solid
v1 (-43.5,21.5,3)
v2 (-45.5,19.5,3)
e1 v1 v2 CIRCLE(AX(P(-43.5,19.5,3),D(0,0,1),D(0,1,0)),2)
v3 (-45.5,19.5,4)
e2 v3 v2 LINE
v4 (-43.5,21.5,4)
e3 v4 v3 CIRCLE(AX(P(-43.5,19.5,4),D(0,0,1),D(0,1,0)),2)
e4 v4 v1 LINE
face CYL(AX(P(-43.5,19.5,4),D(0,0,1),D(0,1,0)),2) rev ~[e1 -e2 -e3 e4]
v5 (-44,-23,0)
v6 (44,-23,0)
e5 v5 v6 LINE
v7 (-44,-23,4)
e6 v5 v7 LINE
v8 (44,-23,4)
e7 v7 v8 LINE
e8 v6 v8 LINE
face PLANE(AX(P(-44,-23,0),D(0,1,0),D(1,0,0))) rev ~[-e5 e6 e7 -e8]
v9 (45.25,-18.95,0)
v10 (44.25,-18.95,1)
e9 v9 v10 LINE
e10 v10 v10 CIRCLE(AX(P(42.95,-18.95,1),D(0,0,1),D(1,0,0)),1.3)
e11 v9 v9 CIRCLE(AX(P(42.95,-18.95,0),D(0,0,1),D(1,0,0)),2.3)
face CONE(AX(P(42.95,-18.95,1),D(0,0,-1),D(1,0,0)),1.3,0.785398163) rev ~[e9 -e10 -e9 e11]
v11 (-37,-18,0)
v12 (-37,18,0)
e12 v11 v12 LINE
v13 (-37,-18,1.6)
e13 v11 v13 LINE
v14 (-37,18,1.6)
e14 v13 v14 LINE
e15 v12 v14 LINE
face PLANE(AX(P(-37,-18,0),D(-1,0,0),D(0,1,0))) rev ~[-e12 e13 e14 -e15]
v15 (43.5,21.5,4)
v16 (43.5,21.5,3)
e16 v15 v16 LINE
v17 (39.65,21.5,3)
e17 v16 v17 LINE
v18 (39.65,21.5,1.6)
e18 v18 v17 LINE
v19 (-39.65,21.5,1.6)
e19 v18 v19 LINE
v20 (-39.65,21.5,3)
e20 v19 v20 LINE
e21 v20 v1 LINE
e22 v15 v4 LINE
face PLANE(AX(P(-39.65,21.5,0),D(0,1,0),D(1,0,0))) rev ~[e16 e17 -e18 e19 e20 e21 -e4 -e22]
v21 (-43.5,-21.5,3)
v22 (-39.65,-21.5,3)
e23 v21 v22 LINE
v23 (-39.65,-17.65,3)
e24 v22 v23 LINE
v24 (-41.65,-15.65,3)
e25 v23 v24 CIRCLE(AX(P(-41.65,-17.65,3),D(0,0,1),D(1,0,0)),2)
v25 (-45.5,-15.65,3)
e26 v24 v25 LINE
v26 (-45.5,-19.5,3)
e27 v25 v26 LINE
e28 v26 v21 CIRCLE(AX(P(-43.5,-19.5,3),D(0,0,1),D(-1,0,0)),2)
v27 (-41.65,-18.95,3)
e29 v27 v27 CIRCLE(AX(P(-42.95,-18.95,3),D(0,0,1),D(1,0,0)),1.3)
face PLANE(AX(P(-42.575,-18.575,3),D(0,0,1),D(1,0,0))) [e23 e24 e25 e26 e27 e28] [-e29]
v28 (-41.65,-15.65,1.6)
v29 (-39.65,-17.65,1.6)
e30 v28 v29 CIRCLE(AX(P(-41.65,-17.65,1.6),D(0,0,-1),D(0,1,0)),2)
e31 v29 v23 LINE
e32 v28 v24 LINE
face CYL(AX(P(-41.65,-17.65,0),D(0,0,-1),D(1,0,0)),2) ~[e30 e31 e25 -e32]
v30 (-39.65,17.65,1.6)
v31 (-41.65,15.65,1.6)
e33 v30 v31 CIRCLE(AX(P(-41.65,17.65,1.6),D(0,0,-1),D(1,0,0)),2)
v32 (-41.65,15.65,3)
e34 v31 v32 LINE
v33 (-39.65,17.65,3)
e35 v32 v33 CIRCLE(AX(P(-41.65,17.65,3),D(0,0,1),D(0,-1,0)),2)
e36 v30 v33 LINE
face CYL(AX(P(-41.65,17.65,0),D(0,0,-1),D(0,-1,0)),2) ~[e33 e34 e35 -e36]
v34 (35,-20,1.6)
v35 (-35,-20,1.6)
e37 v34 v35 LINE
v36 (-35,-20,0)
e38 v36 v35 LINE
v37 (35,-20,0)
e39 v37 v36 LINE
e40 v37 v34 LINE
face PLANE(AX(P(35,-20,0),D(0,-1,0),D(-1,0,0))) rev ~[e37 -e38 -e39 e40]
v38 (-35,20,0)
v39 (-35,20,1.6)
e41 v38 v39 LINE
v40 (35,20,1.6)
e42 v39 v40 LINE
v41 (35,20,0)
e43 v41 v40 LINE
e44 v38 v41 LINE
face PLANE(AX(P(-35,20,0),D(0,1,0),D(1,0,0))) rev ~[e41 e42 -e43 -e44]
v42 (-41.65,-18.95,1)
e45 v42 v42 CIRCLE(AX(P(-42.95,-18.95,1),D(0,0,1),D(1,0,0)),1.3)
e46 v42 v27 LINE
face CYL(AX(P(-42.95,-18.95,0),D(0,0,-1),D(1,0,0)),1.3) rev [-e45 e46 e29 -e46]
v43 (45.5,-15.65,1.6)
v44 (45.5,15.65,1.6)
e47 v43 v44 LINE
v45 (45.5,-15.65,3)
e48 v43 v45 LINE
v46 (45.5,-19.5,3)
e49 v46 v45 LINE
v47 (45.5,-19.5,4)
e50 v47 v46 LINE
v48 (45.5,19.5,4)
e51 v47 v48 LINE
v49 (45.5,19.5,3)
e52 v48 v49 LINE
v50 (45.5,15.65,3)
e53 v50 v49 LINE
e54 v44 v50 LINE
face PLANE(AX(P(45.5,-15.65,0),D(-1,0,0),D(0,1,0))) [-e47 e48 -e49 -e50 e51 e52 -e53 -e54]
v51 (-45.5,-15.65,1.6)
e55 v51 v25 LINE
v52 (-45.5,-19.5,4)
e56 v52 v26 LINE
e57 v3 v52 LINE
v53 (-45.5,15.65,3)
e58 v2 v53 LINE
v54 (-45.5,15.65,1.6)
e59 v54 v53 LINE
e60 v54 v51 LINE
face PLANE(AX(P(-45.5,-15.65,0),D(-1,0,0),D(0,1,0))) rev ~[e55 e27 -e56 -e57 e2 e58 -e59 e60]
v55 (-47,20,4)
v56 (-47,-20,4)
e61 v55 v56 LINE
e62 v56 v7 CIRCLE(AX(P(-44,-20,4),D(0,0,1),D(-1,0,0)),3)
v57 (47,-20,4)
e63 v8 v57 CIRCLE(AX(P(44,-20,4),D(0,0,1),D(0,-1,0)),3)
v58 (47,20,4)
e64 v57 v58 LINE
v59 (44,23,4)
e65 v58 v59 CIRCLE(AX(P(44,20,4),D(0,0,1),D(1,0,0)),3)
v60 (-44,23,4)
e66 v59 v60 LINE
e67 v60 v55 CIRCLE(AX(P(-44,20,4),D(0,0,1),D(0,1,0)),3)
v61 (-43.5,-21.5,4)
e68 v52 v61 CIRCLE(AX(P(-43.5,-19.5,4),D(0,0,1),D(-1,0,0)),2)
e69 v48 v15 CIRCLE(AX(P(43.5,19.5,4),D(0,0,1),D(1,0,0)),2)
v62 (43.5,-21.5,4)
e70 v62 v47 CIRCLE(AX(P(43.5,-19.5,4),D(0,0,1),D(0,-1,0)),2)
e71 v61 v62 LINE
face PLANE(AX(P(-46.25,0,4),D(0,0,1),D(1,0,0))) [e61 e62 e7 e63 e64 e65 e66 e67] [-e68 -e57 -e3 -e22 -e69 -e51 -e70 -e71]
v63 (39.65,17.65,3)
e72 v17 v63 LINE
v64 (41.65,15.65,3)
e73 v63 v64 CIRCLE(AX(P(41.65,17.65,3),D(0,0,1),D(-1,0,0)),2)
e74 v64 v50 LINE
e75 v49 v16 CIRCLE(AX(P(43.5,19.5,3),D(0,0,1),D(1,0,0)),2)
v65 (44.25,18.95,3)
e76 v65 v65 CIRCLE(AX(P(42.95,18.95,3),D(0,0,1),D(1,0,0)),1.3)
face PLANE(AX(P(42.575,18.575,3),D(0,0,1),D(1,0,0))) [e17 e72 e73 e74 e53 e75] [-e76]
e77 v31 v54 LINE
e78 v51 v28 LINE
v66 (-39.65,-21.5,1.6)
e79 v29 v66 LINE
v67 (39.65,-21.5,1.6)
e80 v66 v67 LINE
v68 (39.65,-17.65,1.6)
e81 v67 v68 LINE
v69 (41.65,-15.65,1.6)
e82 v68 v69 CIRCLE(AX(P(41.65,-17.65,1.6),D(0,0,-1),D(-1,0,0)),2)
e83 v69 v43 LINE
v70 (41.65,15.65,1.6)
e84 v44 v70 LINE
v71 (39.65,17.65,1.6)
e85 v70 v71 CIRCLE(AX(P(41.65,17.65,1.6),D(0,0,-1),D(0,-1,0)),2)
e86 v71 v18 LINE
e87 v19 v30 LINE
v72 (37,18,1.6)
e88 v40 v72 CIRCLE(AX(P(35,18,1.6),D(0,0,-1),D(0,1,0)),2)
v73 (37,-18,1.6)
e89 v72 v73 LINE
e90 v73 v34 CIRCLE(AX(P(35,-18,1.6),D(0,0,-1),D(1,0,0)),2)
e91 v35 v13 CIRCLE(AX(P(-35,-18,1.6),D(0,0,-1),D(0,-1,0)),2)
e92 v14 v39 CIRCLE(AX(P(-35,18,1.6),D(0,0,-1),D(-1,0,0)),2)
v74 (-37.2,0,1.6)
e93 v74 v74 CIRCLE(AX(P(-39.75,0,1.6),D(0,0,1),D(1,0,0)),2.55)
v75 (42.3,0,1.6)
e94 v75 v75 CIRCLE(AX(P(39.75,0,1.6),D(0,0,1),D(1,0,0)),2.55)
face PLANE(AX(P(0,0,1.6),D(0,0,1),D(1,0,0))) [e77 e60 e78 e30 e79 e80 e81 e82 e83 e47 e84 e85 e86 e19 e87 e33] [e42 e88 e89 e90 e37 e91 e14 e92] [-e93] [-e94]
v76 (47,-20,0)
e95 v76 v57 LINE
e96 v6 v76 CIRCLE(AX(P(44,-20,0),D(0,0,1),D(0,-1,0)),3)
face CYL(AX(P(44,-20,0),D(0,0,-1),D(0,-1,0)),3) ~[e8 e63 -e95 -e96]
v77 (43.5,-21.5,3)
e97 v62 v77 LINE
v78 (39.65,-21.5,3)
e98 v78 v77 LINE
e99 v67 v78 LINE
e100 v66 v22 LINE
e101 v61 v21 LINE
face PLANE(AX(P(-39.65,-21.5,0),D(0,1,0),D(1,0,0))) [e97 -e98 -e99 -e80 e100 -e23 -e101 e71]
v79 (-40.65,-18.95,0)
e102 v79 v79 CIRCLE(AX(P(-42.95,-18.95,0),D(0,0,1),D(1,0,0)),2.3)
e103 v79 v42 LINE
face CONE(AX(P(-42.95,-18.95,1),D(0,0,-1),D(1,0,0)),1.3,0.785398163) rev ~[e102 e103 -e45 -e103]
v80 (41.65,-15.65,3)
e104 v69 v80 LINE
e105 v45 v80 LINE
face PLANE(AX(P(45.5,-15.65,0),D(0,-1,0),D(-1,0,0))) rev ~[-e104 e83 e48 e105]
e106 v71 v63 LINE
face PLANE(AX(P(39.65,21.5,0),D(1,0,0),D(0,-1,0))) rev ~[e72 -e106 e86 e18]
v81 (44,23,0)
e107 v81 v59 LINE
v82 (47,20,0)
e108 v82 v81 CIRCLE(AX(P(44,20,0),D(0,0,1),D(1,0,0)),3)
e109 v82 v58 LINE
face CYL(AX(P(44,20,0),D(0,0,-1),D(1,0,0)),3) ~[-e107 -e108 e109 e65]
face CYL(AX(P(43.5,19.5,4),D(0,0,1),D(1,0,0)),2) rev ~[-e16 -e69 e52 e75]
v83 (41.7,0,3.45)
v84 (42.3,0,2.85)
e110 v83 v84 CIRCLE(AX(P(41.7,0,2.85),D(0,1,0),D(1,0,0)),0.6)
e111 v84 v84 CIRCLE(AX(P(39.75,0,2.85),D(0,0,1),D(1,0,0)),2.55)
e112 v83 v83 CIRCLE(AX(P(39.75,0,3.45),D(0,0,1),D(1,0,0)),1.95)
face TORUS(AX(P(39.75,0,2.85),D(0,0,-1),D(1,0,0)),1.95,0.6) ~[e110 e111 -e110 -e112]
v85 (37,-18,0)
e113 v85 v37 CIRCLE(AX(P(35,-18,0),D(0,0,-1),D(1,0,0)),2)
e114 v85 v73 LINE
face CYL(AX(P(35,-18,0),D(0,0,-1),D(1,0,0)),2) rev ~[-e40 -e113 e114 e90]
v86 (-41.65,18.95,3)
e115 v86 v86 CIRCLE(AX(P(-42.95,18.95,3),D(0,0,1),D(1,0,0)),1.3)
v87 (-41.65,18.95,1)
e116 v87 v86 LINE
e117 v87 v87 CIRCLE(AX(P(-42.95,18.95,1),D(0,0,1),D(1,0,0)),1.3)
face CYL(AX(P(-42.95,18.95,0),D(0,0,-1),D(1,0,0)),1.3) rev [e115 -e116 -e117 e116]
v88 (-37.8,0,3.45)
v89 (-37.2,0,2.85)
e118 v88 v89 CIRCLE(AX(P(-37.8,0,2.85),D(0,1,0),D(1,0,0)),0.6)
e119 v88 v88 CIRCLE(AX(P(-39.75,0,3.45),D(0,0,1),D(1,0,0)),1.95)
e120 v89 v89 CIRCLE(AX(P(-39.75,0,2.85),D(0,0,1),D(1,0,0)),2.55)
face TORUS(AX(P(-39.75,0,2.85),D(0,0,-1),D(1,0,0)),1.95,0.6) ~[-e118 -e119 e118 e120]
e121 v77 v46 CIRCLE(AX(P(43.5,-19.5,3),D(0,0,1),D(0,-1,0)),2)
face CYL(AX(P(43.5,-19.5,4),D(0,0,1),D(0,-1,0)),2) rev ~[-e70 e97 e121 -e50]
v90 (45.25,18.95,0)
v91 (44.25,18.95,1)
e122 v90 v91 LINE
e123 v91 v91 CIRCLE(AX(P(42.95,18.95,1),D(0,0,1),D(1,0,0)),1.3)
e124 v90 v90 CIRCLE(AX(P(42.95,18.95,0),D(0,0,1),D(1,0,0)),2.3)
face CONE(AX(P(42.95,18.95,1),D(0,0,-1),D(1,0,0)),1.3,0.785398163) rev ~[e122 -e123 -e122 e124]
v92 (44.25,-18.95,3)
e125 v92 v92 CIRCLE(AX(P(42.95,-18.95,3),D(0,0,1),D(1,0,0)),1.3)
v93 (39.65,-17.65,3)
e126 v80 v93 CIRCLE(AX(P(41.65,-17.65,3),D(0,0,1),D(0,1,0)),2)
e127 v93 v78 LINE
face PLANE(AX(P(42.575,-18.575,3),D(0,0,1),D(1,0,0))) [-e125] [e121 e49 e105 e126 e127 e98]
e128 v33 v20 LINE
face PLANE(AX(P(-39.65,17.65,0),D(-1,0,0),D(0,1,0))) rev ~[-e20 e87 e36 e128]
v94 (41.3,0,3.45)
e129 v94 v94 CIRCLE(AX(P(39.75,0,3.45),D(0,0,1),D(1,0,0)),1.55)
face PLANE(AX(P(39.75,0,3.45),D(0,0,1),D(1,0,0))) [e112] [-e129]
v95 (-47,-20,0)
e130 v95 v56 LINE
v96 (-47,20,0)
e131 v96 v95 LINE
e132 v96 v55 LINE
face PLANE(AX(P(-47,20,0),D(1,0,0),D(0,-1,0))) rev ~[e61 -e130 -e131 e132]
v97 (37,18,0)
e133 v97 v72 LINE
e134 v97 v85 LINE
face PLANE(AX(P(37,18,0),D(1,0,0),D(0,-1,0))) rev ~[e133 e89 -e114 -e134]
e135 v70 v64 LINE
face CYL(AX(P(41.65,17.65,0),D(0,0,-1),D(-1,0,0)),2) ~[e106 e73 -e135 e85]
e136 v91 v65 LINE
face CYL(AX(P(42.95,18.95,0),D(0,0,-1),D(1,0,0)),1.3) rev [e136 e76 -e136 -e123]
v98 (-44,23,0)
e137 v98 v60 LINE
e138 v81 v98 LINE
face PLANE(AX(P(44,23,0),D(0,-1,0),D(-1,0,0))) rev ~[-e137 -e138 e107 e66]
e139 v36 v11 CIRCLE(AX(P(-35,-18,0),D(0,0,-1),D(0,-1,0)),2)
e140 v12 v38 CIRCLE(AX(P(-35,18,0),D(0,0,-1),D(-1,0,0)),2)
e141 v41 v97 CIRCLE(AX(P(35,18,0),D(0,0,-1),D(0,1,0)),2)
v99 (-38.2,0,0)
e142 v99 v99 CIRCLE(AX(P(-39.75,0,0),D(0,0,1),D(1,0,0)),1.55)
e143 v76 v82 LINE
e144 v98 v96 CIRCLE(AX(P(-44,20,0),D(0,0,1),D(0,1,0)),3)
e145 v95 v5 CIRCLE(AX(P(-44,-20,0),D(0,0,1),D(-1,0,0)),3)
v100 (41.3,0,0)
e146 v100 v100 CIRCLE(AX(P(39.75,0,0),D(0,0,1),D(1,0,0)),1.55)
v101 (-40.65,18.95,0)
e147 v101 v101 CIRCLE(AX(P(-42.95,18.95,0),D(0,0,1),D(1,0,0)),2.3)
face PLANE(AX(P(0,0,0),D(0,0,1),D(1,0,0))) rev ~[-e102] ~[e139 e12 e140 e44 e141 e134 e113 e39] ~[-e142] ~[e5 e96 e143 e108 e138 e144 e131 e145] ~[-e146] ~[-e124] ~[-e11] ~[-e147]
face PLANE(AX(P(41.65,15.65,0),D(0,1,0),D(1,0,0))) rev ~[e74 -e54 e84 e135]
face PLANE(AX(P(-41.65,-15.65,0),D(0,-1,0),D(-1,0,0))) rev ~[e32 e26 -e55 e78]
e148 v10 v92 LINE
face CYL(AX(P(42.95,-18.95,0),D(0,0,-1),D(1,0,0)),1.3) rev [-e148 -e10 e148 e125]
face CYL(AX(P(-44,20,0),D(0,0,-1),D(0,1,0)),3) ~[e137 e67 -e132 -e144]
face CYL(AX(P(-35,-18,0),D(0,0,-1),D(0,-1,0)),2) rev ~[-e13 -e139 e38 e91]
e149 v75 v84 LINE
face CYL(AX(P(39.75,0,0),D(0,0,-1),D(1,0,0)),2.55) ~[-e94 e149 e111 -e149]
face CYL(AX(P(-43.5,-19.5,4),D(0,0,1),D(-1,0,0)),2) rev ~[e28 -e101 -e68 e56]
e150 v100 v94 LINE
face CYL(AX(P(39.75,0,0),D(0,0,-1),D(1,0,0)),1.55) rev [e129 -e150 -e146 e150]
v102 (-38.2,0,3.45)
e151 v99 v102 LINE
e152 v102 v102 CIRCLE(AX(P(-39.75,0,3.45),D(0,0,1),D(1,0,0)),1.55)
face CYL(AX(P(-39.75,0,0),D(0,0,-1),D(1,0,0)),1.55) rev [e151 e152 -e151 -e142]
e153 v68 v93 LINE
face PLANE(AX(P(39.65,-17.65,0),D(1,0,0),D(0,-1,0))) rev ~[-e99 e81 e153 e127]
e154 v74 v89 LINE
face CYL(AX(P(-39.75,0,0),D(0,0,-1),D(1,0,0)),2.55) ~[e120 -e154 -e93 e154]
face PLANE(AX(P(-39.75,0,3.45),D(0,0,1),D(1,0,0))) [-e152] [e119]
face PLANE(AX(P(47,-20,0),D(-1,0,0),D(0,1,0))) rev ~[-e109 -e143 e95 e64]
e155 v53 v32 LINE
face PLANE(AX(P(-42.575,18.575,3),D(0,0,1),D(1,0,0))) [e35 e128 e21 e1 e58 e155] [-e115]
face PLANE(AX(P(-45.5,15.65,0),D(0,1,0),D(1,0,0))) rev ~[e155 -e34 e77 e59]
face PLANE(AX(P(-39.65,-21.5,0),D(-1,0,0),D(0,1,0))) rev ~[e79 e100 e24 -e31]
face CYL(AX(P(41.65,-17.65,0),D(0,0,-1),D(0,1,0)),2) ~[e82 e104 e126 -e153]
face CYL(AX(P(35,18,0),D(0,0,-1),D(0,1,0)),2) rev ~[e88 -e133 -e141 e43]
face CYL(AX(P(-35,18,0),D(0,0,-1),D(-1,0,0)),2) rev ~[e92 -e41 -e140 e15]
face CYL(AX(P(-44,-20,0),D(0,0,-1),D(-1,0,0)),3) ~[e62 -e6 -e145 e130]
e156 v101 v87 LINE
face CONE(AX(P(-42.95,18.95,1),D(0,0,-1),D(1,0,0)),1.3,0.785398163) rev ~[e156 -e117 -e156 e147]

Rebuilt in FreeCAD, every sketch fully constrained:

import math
import FreeCAD as App
import Part
import Sketcher

V = App.Vector
Q = App.Units.Quantity


def edges_at(feature, points):
    """Names of the edges that pass closest to the given points."""
    edges = feature.Shape.Edges
    near = lambda p: min(range(len(edges)), key=lambda i: edges[i].distToShape(Part.Vertex(*p))[0])
    return sorted({f"Edge{near(p) + 1}" for p in points})

doc = App.newDocument("Part")
body = doc.addObject("PartDesign::Body", "Body")

# Sketch on XY plane
sketch1 = body.newObject("Sketcher::SketchObject", "Sketch")
sketch1.AttachmentSupport = (doc.getObject("XY_Plane"), [""])
sketch1.MapMode = "FlatFace"
sketch1.addGeometry([
    Part.ArcOfCircle(Part.Circle(V(-44, -20, 0), V(0, 0, 1), 3), math.radians(180), math.radians(270)),  # 0
    Part.LineSegment(V(-44, -23, 0), V(44, -23, 0)),  # 1
    Part.ArcOfCircle(Part.Circle(V(44, -20, 0), V(0, 0, 1), 3), math.radians(-90), math.radians(0)),  # 2
    Part.LineSegment(V(47, -20, 0), V(47, 20, 0)),  # 3
    Part.ArcOfCircle(Part.Circle(V(44, 20, 0), V(0, 0, 1), 3), math.radians(0), math.radians(90)),  # 4
    Part.LineSegment(V(44, 23, 0), V(-44, 23, 0)),  # 5
    Part.ArcOfCircle(Part.Circle(V(-44, 20, 0), V(0, 0, 1), 3), math.radians(90), math.radians(180)),  # 6
    Part.LineSegment(V(-47, 20, 0), V(-47, -20, 0)),  # 7
    Part.LineSegment(V(45.5, -15.7, 0), V(41.6, -15.7, 0)),  # 8
    Part.ArcOfCircle(Part.Circle(V(41.6, -17.6, 0), V(0, 0, 1), 2), math.radians(90), math.radians(180)),  # 9
    Part.LineSegment(V(39.6, -17.6, 0), V(39.6, -21.5, 0)),  # 10
    Part.LineSegment(V(39.6, -21.5, 0), V(-39.6, -21.5, 0)),  # 11
    Part.LineSegment(V(-39.6, -21.5, 0), V(-39.6, -17.6, 0)),  # 12
    Part.ArcOfCircle(Part.Circle(V(-41.6, -17.6, 0), V(0, 0, 1), 2), math.radians(0), math.radians(90)),  # 13
    Part.LineSegment(V(-41.6, -15.7, 0), V(-45.5, -15.7, 0)),  # 14
    Part.LineSegment(V(-45.5, -15.7, 0), V(-45.5, 15.7, 0)),  # 15
    Part.LineSegment(V(-45.5, 15.7, 0), V(-41.6, 15.7, 0)),  # 16
    Part.ArcOfCircle(Part.Circle(V(-41.6, 17.6, 0), V(0, 0, 1), 2), math.radians(-90), math.radians(0)),  # 17
    Part.LineSegment(V(-39.6, 17.6, 0), V(-39.6, 21.5, 0)),  # 18
    Part.LineSegment(V(-39.6, 21.5, 0), V(39.6, 21.5, 0)),  # 19
    Part.LineSegment(V(39.6, 21.5, 0), V(39.6, 17.6, 0)),  # 20
    Part.ArcOfCircle(Part.Circle(V(41.6, 17.6, 0), V(0, 0, 1), 2), math.radians(180), math.radians(270)),  # 21
    Part.LineSegment(V(41.6, 15.7, 0), V(45.5, 15.7, 0)),  # 22
    Part.LineSegment(V(45.5, 15.7, 0), V(45.5, -15.7, 0)),  # 23
    Part.Circle(V(-43, -18.9, 0), V(0, 0, 1), 1.3),  # 24
    Part.Circle(V(-43, 18.9, 0), V(0, 0, 1), 1.3),  # 25
    Part.Circle(V(43, 18.9, 0), V(0, 0, 1), 1.3),  # 26
    Part.Circle(V(43, -18.9, 0), V(0, 0, 1), 1.3),  # 27
], False)
sketch1.addConstraint([
    Sketcher.Constraint("Tangent", 0, 2, 1, 1),
    Sketcher.Constraint("Tangent", 1, 2, 2, 1),
    Sketcher.Constraint("Tangent", 2, 2, 3, 1),
    Sketcher.Constraint("Tangent", 3, 2, 4, 1),
    Sketcher.Constraint("Tangent", 4, 2, 5, 1),
    Sketcher.Constraint("Tangent", 5, 2, 6, 1),
    Sketcher.Constraint("Tangent", 6, 2, 7, 1),
    Sketcher.Constraint("Tangent", 7, 2, 0, 1),
    Sketcher.Constraint("Tangent", 8, 2, 9, 1),
    Sketcher.Constraint("Tangent", 9, 2, 10, 1),
    Sketcher.Constraint("Coincident", 10, 2, 11, 1),
    Sketcher.Constraint("Coincident", 11, 2, 12, 1),
    Sketcher.Constraint("Tangent", 12, 2, 13, 1),
    Sketcher.Constraint("Tangent", 13, 2, 14, 1),
    Sketcher.Constraint("Coincident", 14, 2, 15, 1),
    Sketcher.Constraint("Coincident", 15, 2, 16, 1),
    Sketcher.Constraint("Tangent", 16, 2, 17, 1),
    Sketcher.Constraint("Tangent", 17, 2, 18, 1),
    Sketcher.Constraint("Coincident", 18, 2, 19, 1),
    Sketcher.Constraint("Coincident", 19, 2, 20, 1),
    Sketcher.Constraint("Tangent", 20, 2, 21, 1),
    Sketcher.Constraint("Tangent", 21, 2, 22, 1),
    Sketcher.Constraint("Coincident", 22, 2, 23, 1),
    Sketcher.Constraint("Coincident", 23, 2, 8, 1),
    Sketcher.Constraint("Horizontal", 1),
    Sketcher.Constraint("Vertical", 3),
    Sketcher.Constraint("Horizontal", 5),
    Sketcher.Constraint("Vertical", 7),
    Sketcher.Constraint("Horizontal", 8),
    Sketcher.Constraint("Vertical", 10),
    Sketcher.Constraint("Horizontal", 11),
    Sketcher.Constraint("Vertical", 12),
    Sketcher.Constraint("Horizontal", 14),
    Sketcher.Constraint("Vertical", 15),
    Sketcher.Constraint("Horizontal", 16),
    Sketcher.Constraint("Vertical", 18),
    Sketcher.Constraint("Horizontal", 19),
    Sketcher.Constraint("Vertical", 20),
    Sketcher.Constraint("Horizontal", 22),
    Sketcher.Constraint("Vertical", 23),
    Sketcher.Constraint("Equal", 0, 2),
    Sketcher.Constraint("Equal", 2, 4),
    Sketcher.Constraint("Equal", 4, 6),
    Sketcher.Constraint("Equal", 9, 13),
    Sketcher.Constraint("Equal", 13, 17),
    Sketcher.Constraint("Equal", 17, 21),
    Sketcher.Constraint("Equal", 24, 25),
    Sketcher.Constraint("Equal", 25, 26),
    Sketcher.Constraint("Equal", 26, 27),
    Sketcher.Constraint("Symmetric", 0, 3, 4, 3, -1, 1),
    Sketcher.Constraint("Symmetric", 9, 3, 17, 3, -1, 1),
    Sketcher.Constraint("Symmetric", 13, 3, 21, 3, -1, 1),
    Sketcher.Constraint("Symmetric", 24, 3, 26, 3, -1, 1),
    Sketcher.Constraint("Symmetric", 25, 3, 27, 3, -1, 1),
    Sketcher.Constraint("Symmetric", 9, 3, 13, 3, -2),
    Sketcher.Constraint("Symmetric", 25, 3, 26, 3, -2),
    Sketcher.Constraint("Equal", 8, 14),
    Sketcher.Constraint("Equal", 22, 10),
    Sketcher.Constraint("Equal", 12, 18),
    Sketcher.Constraint("Radius", 0, Q("3 mm")),
    Sketcher.Constraint("Radius", 9, Q("2 mm")),
    Sketcher.Constraint("Diameter", 24, Q("2.6 mm")),
    Sketcher.Constraint("DistanceX", 1, 1, 1, 2, Q("88 mm")),
    Sketcher.Constraint("DistanceY", 3, 1, 3, 2, Q("40 mm")),
    Sketcher.Constraint("DistanceX", 11, 2, 11, 1, Q("79.3 mm")),
    Sketcher.Constraint("DistanceY", 15, 1, 15, 2, Q("31.3 mm")),
    Sketcher.Constraint("DistanceX", 8, 2, 8, 1, Q("3.85 mm")),
    Sketcher.Constraint("DistanceX", 24, 3, 13, 3, Q("1.3 mm")),
    Sketcher.Constraint("DistanceY", 24, 3, 13, 3, Q("1.3 mm")),
])
pad1 = body.newObject("PartDesign::Pad", "Pad")
pad1.Profile = sketch1
pad1.Length = 4

# Sketch on XY plane
sketch2 = body.newObject("Sketcher::SketchObject", "Sketch001")
sketch2.AttachmentSupport = (doc.getObject("XY_Plane"), [""])
sketch2.MapMode = "FlatFace"
sketch2.addGeometry([
    Part.LineSegment(V(39.6, 21.5, 0), V(-39.6, 21.5, 0)),  # 0
    Part.LineSegment(V(-39.6, 21.5, 0), V(-39.6, 17.6, 0)),  # 1
    Part.ArcOfCircle(Part.Circle(V(-41.6, 17.6, 0), V(0, 0, 1), 2), math.radians(-90), math.radians(0)),  # 2
    Part.LineSegment(V(-41.6, 15.7, 0), V(-45.5, 15.7, 0)),  # 3
    Part.LineSegment(V(-45.5, 15.7, 0), V(-45.5, -15.7, 0)),  # 4
    Part.LineSegment(V(-45.5, -15.7, 0), V(-41.6, -15.7, 0)),  # 5
    Part.ArcOfCircle(Part.Circle(V(-41.6, -17.6, 0), V(0, 0, 1), 2), math.radians(0), math.radians(90)),  # 6
    Part.LineSegment(V(-39.6, -17.6, 0), V(-39.6, -21.5, 0)),  # 7
    Part.LineSegment(V(-39.6, -21.5, 0), V(39.6, -21.5, 0)),  # 8
    Part.LineSegment(V(39.6, -21.5, 0), V(39.6, -17.6, 0)),  # 9
    Part.ArcOfCircle(Part.Circle(V(41.6, -17.6, 0), V(0, 0, 1), 2), math.radians(90), math.radians(180)),  # 10
    Part.LineSegment(V(41.6, -15.7, 0), V(45.5, -15.7, 0)),  # 11
    Part.LineSegment(V(45.5, -15.7, 0), V(45.5, 15.7, 0)),  # 12
    Part.LineSegment(V(45.5, 15.7, 0), V(41.6, 15.7, 0)),  # 13
    Part.ArcOfCircle(Part.Circle(V(41.6, 17.6, 0), V(0, 0, 1), 2), math.radians(180), math.radians(270)),  # 14
    Part.LineSegment(V(39.6, 17.6, 0), V(39.6, 21.5, 0)),  # 15
    Part.Circle(V(-39.8, 0, 0), V(0, 0, 1), 2.5),  # 16
    Part.LineSegment(V(-37, -18, 0), V(-37, 18, 0)),  # 17
    Part.ArcOfCircle(Part.Circle(V(-35, 18, 0), V(0, 0, 1), 2), math.radians(90), math.radians(180)),  # 18
    Part.LineSegment(V(-35, 20, 0), V(35, 20, 0)),  # 19
    Part.ArcOfCircle(Part.Circle(V(35, 18, 0), V(0, 0, 1), 2), math.radians(0), math.radians(90)),  # 20
    Part.LineSegment(V(37, 18, 0), V(37, -18, 0)),  # 21
    Part.ArcOfCircle(Part.Circle(V(35, -18, 0), V(0, 0, 1), 2), math.radians(-90), math.radians(0)),  # 22
    Part.LineSegment(V(35, -20, 0), V(-35, -20, 0)),  # 23
    Part.ArcOfCircle(Part.Circle(V(-35, -18, 0), V(0, 0, 1), 2), math.radians(180), math.radians(270)),  # 24
    Part.Circle(V(39.8, 0, 0), V(0, 0, 1), 2.5),  # 25
], False)
sketch2.addConstraint([
    Sketcher.Constraint("Coincident", 0, 2, 1, 1),
    Sketcher.Constraint("Tangent", 1, 2, 2, 2),
    Sketcher.Constraint("Tangent", 2, 1, 3, 1),
    Sketcher.Constraint("Coincident", 3, 2, 4, 1),
    Sketcher.Constraint("Coincident", 4, 2, 5, 1),
    Sketcher.Constraint("Tangent", 5, 2, 6, 2),
    Sketcher.Constraint("Tangent", 6, 1, 7, 1),
    Sketcher.Constraint("Coincident", 7, 2, 8, 1),
    Sketcher.Constraint("Coincident", 8, 2, 9, 1),
    Sketcher.Constraint("Tangent", 9, 2, 10, 2),
    Sketcher.Constraint("Tangent", 10, 1, 11, 1),
    Sketcher.Constraint("Coincident", 11, 2, 12, 1),
    Sketcher.Constraint("Coincident", 12, 2, 13, 1),
    Sketcher.Constraint("Tangent", 13, 2, 14, 2),
    Sketcher.Constraint("Tangent", 14, 1, 15, 1),
    Sketcher.Constraint("Coincident", 15, 2, 0, 1),
    Sketcher.Constraint("Tangent", 17, 2, 18, 2),
    Sketcher.Constraint("Tangent", 18, 1, 19, 1),
    Sketcher.Constraint("Tangent", 19, 2, 20, 2),
    Sketcher.Constraint("Tangent", 20, 1, 21, 1),
    Sketcher.Constraint("Tangent", 21, 2, 22, 2),
    Sketcher.Constraint("Tangent", 22, 1, 23, 1),
    Sketcher.Constraint("Tangent", 23, 2, 24, 2),
    Sketcher.Constraint("Tangent", 24, 1, 17, 1),
    Sketcher.Constraint("Horizontal", 0),
    Sketcher.Constraint("Vertical", 1),
    Sketcher.Constraint("Horizontal", 3),
    Sketcher.Constraint("Vertical", 4),
    Sketcher.Constraint("Horizontal", 5),
    Sketcher.Constraint("Vertical", 7),
    Sketcher.Constraint("Horizontal", 8),
    Sketcher.Constraint("Vertical", 9),
    Sketcher.Constraint("Horizontal", 11),
    Sketcher.Constraint("Vertical", 12),
    Sketcher.Constraint("Horizontal", 13),
    Sketcher.Constraint("Vertical", 15),
    Sketcher.Constraint("Vertical", 17),
    Sketcher.Constraint("Horizontal", 19),
    Sketcher.Constraint("Vertical", 21),
    Sketcher.Constraint("Horizontal", 23),
    Sketcher.Constraint("Equal", 2, 6),
    Sketcher.Constraint("Equal", 6, 10),
    Sketcher.Constraint("Equal", 10, 14),
    Sketcher.Constraint("Equal", 14, 18),
    Sketcher.Constraint("Equal", 18, 20),
    Sketcher.Constraint("Equal", 20, 22),
    Sketcher.Constraint("Equal", 22, 24),
    Sketcher.Constraint("Equal", 16, 25),
    Sketcher.Constraint("Symmetric", 2, 3, 10, 3, -1, 1),
    Sketcher.Constraint("Symmetric", 6, 3, 14, 3, -1, 1),
    Sketcher.Constraint("Symmetric", 18, 3, 22, 3, -1, 1),
    Sketcher.Constraint("Symmetric", 16, 3, 25, 3, -1, 1),
    Sketcher.Constraint("Symmetric", 6, 3, 10, 3, -2),
    Sketcher.Constraint("PointOnObject", 16, 3, -1),
    Sketcher.Constraint("Equal", 5, 11),
    Sketcher.Constraint("Equal", 13, 1),
    Sketcher.Constraint("Equal", 1, 7),
    Sketcher.Constraint("Radius", 2, Q("2 mm")),
    Sketcher.Constraint("Diameter", 16, Q("5.1 mm")),
    Sketcher.Constraint("DistanceX", 19, 1, 19, 2, Q("70 mm")),
    Sketcher.Constraint("DistanceY", 17, 1, 17, 2, Q("36 mm")),
    Sketcher.Constraint("DistanceX", 0, 2, 0, 1, Q("79.3 mm")),
    Sketcher.Constraint("DistanceY", 4, 2, 4, 1, Q("31.3 mm")),
    Sketcher.Constraint("DistanceX", 3, 2, 3, 1, Q("3.85 mm")),
    Sketcher.Constraint("DistanceX", 2, 3, 16, 3, Q("1.9 mm")),
])
pad2 = body.newObject("PartDesign::Pad", "Pad001")
pad2.Profile = sketch2
pad2.Length = 1.6

# Sketch on XY plane
sketch3 = body.newObject("Sketcher::SketchObject", "Sketch002")
sketch3.AttachmentSupport = (doc.getObject("XY_Plane"), [""])
sketch3.MapMode = "FlatFace"
sketch3.addGeometry([
    Part.Circle(V(-39.8, 0, 0), V(0, 0, 1), 2.5),
    Part.Circle(V(-39.8, 0, 0), V(0, 0, 1), 1.6),
    Part.Circle(V(39.8, 0, 0), V(0, 0, 1), 2.5),
    Part.Circle(V(39.8, 0, 0), V(0, 0, 1), 1.6),
], False)
sketch3.addConstraint([
    Sketcher.Constraint("Coincident", 1, 3, 0, 3),
    Sketcher.Constraint("Coincident", 3, 3, 2, 3),
    Sketcher.Constraint("Equal", 0, 2),
    Sketcher.Constraint("Equal", 1, 3),
    Sketcher.Constraint("Symmetric", 0, 3, 2, 3, -1, 1),
    Sketcher.Constraint("PointOnObject", 0, 3, -1),
    Sketcher.Constraint("Diameter", 0, Q("5.1 mm")),
    Sketcher.Constraint("Diameter", 1, Q("3.1 mm")),
    Sketcher.Constraint("DistanceX", 0, 3, 2, 3, Q("79.5 mm")),
])
pad3 = body.newObject("PartDesign::Pad", "Pad002")
pad3.Profile = sketch3
pad3.Length = 3.45

# Sketch on XY plane
sketch4 = body.newObject("Sketcher::SketchObject", "Sketch003")
sketch4.AttachmentSupport = (doc.getObject("XY_Plane"), [""])
sketch4.MapMode = "FlatFace"
sketch4.AttachmentOffset = App.Placement(V(0, 0, 4), App.Rotation())
sketch4.addGeometry([
    Part.LineSegment(V(-45.5, 19.5, 0), V(-45.5, 15.7, 0)),  # 0
    Part.LineSegment(V(-45.5, 15.7, 0), V(-41.6, 15.7, 0)),  # 1
    Part.ArcOfCircle(Part.Circle(V(-41.6, 17.6, 0), V(0, 0, 1), 2), math.radians(-90), math.radians(0)),  # 2
    Part.LineSegment(V(-39.6, 17.6, 0), V(-39.6, 21.5, 0)),  # 3
    Part.LineSegment(V(-39.6, 21.5, 0), V(-43.5, 21.5, 0)),  # 4
    Part.ArcOfCircle(Part.Circle(V(-43.5, 19.5, 0), V(0, 0, 1), 2), math.radians(90), math.radians(180)),  # 5
    Part.Circle(V(-43, 18.9, 0), V(0, 0, 1), 1.3),  # 6
    Part.LineSegment(V(-41.6, -15.7, 0), V(-45.5, -15.7, 0)),  # 7
    Part.LineSegment(V(-45.5, -15.7, 0), V(-45.5, -19.5, 0)),  # 8
    Part.ArcOfCircle(Part.Circle(V(-43.5, -19.5, 0), V(0, 0, 1), 2), math.radians(180), math.radians(270)),  # 9
    Part.LineSegment(V(-43.5, -21.5, 0), V(-39.6, -21.5, 0)),  # 10
    Part.LineSegment(V(-39.6, -21.5, 0), V(-39.6, -17.6, 0)),  # 11
    Part.ArcOfCircle(Part.Circle(V(-41.6, -17.6, 0), V(0, 0, 1), 2), math.radians(0), math.radians(90)),  # 12
    Part.Circle(V(-43, -18.9, 0), V(0, 0, 1), 1.3),  # 13
    Part.LineSegment(V(39.6, -17.6, 0), V(39.6, -21.5, 0)),  # 14
    Part.LineSegment(V(39.6, -21.5, 0), V(43.5, -21.5, 0)),  # 15
    Part.ArcOfCircle(Part.Circle(V(43.5, -19.5, 0), V(0, 0, 1), 2), math.radians(-90), math.radians(0)),  # 16
    Part.LineSegment(V(45.5, -19.5, 0), V(45.5, -15.7, 0)),  # 17
    Part.LineSegment(V(45.5, -15.7, 0), V(41.6, -15.7, 0)),  # 18
    Part.ArcOfCircle(Part.Circle(V(41.6, -17.6, 0), V(0, 0, 1), 2), math.radians(90), math.radians(180)),  # 19
    Part.Circle(V(43, -18.9, 0), V(0, 0, 1), 1.3),  # 20
    Part.LineSegment(V(43.5, 21.5, 0), V(39.6, 21.5, 0)),  # 21
    Part.LineSegment(V(39.6, 21.5, 0), V(39.6, 17.6, 0)),  # 22
    Part.ArcOfCircle(Part.Circle(V(41.6, 17.6, 0), V(0, 0, 1), 2), math.radians(180), math.radians(270)),  # 23
    Part.LineSegment(V(41.6, 15.7, 0), V(45.5, 15.7, 0)),  # 24
    Part.LineSegment(V(45.5, 15.7, 0), V(45.5, 19.5, 0)),  # 25
    Part.ArcOfCircle(Part.Circle(V(43.5, 19.5, 0), V(0, 0, 1), 2), math.radians(0), math.radians(90)),  # 26
    Part.Circle(V(43, 18.9, 0), V(0, 0, 1), 1.3),  # 27
], False)
sketch4.addConstraint([
    Sketcher.Constraint("Coincident", 0, 2, 1, 1),
    Sketcher.Constraint("Tangent", 1, 2, 2, 1),
    Sketcher.Constraint("Tangent", 2, 2, 3, 1),
    Sketcher.Constraint("Coincident", 3, 2, 4, 1),
    Sketcher.Constraint("Tangent", 4, 2, 5, 1),
    Sketcher.Constraint("Tangent", 5, 2, 0, 1),
    Sketcher.Constraint("Coincident", 7, 2, 8, 1),
    Sketcher.Constraint("Tangent", 8, 2, 9, 1),
    Sketcher.Constraint("Tangent", 9, 2, 10, 1),
    Sketcher.Constraint("Coincident", 10, 2, 11, 1),
    Sketcher.Constraint("Tangent", 11, 2, 12, 1),
    Sketcher.Constraint("Tangent", 12, 2, 7, 1),
    Sketcher.Constraint("Coincident", 14, 2, 15, 1),
    Sketcher.Constraint("Tangent", 15, 2, 16, 1),
    Sketcher.Constraint("Tangent", 16, 2, 17, 1),
    Sketcher.Constraint("Coincident", 17, 2, 18, 1),
    Sketcher.Constraint("Tangent", 18, 2, 19, 1),
    Sketcher.Constraint("Tangent", 19, 2, 14, 1),
    Sketcher.Constraint("Coincident", 21, 2, 22, 1),
    Sketcher.Constraint("Tangent", 22, 2, 23, 1),
    Sketcher.Constraint("Tangent", 23, 2, 24, 1),
    Sketcher.Constraint("Coincident", 24, 2, 25, 1),
    Sketcher.Constraint("Tangent", 25, 2, 26, 1),
    Sketcher.Constraint("Tangent", 26, 2, 21, 1),
    Sketcher.Constraint("Vertical", 0),
    Sketcher.Constraint("Horizontal", 1),
    Sketcher.Constraint("Vertical", 3),
    Sketcher.Constraint("Horizontal", 4),
    Sketcher.Constraint("Horizontal", 7),
    Sketcher.Constraint("Vertical", 8),
    Sketcher.Constraint("Horizontal", 10),
    Sketcher.Constraint("Vertical", 11),
    Sketcher.Constraint("Vertical", 14),
    Sketcher.Constraint("Horizontal", 15),
    Sketcher.Constraint("Vertical", 17),
    Sketcher.Constraint("Horizontal", 18),
    Sketcher.Constraint("Horizontal", 21),
    Sketcher.Constraint("Vertical", 22),
    Sketcher.Constraint("Horizontal", 24),
    Sketcher.Constraint("Vertical", 25),
    Sketcher.Constraint("Equal", 2, 5),
    Sketcher.Constraint("Equal", 5, 9),
    Sketcher.Constraint("Equal", 9, 12),
    Sketcher.Constraint("Equal", 6, 13),
    Sketcher.Constraint("Equal", 12, 16),
    Sketcher.Constraint("Equal", 16, 19),
    Sketcher.Constraint("Equal", 13, 20),
    Sketcher.Constraint("Equal", 19, 23),
    Sketcher.Constraint("Equal", 23, 26),
    Sketcher.Constraint("Equal", 20, 27),
    Sketcher.Constraint("Symmetric", 5, 3, 16, 3, -1, 1),
    Sketcher.Constraint("Symmetric", 2, 3, 19, 3, -1, 1),
    Sketcher.Constraint("Symmetric", 6, 3, 20, 3, -1, 1),
    Sketcher.Constraint("Symmetric", 12, 3, 23, 3, -1, 1),
    Sketcher.Constraint("Symmetric", 9, 3, 26, 3, -1, 1),
    Sketcher.Constraint("Symmetric", 13, 3, 27, 3, -1, 1),
    Sketcher.Constraint("Symmetric", 9, 3, 16, 3, -2),
    Sketcher.Constraint("Symmetric", 12, 3, 19, 3, -2),
    Sketcher.Constraint("Symmetric", 13, 3, 20, 3, -2),
    Sketcher.Constraint("Equal", 24, 0),
    Sketcher.Constraint("Radius", 2, Q("2 mm")),
    Sketcher.Constraint("Diameter", 6, Q("2.6 mm")),
    Sketcher.Constraint("DistanceY", 9, 3, 5, 3, Q("39 mm")),
    Sketcher.Constraint("DistanceX", 9, 3, 16, 3, Q("87 mm")),
    Sketcher.Constraint("DistanceX", 1, 1, 1, 2, Q("3.85 mm")),
    Sketcher.Constraint("DistanceX", 6, 3, 2, 3, Q("1.3 mm")),
    Sketcher.Constraint("DistanceY", 2, 3, 6, 3, Q("1.3 mm")),
])
pocket1 = body.newObject("PartDesign::Pocket", "Pocket")
pocket1.Profile = sketch4
pocket1.Length = 1
doc.recompute()

chamfer = body.newObject("PartDesign::Chamfer", "Chamfer")
chamfer.Base = (pocket1, edges_at(pocket1, [
    (41.65, 18.95, 0),
    (41.65, -18.95, 0),
    (-44.25, -18.95, 0),
    (-44.25, 18.95, 0),
]))
chamfer.Size = 1
doc.recompute()

fillet = body.newObject("PartDesign::Fillet", "Fillet")
fillet.Base = (chamfer, edges_at(chamfer, [(37.2, 0, 3.45), (-42.3, 0, 3.45)]))
fillet.Radius = 0.6

doc.recompute()
